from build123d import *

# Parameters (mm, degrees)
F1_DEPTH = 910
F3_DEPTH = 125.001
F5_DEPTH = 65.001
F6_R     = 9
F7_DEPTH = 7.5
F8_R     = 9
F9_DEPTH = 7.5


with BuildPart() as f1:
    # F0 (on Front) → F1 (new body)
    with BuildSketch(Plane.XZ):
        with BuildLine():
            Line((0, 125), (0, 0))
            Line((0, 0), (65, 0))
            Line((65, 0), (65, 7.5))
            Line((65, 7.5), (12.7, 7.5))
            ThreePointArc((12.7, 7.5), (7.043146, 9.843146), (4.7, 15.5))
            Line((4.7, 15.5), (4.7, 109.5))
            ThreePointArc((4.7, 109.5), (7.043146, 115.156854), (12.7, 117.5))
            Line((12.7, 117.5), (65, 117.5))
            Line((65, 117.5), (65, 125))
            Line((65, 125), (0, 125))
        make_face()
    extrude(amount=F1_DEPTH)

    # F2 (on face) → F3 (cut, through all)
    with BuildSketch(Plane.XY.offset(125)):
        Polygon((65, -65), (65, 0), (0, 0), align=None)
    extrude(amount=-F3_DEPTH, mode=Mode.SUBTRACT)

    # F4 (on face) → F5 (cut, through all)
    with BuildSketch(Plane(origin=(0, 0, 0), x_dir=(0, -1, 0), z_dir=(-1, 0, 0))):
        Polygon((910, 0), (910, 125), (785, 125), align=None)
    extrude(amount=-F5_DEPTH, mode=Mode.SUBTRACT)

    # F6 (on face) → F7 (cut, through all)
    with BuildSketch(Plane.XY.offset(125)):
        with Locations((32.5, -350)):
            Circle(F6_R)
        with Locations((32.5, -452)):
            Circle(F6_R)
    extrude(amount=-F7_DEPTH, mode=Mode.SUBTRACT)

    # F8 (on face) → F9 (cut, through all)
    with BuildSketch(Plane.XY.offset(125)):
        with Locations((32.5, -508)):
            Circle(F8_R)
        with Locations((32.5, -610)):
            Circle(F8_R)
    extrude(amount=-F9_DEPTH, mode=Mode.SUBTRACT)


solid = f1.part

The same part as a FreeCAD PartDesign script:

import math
import FreeCAD as App
import Part
import Sketcher
from FreeCAD import Vector


def add_polygon(sketch, points):
    """Adds a closed chain of lines whose ends are joined by coincident constraints."""
    first, n = sketch.GeometryCount, len(points)
    for a, b in zip(points, points[1:] + points[:1]):
        sketch.addGeometry(Part.LineSegment(App.Vector(*a, 0), App.Vector(*b, 0)), False)
    for i in range(n):
        sketch.addConstraint(Sketcher.Constraint("Coincident", first + i, 2, first + (i + 1) % n, 1))

doc = App.newDocument("Part")
body = doc.addObject("PartDesign::Body", "Body")

sketch1 = body.newObject("Sketcher::SketchObject", "Sketch")
sketch1.AttachmentSupport = (doc.getObject("XZ_Plane"), [""])
sketch1.MapMode = "FlatFace"
sketch1.addGeometry(Part.LineSegment(Vector(0, 125, 0), Vector(0, 0, 0)), False)
sketch1.addGeometry(Part.LineSegment(Vector(0, 0, 0), Vector(65, 0, 0)), False)
sketch1.addGeometry(Part.LineSegment(Vector(65, 0, 0), Vector(65, 8, 0)), False)
sketch1.addGeometry(Part.LineSegment(Vector(65, 8, 0), Vector(13, 8, 0)), False)
sketch1.addGeometry(Part.ArcOfCircle(Part.Circle(Vector(13, 16, 0), Vector(0, 0, 1), 8), math.radians(-180), math.radians(-90)), False)
sketch1.addGeometry(Part.LineSegment(Vector(5, 16, 0), Vector(5, 110, 0)), False)
sketch1.addGeometry(Part.ArcOfCircle(Part.Circle(Vector(13, 109, 0), Vector(0, 0, 1), 8), math.radians(90), math.radians(180)), False)
sketch1.addGeometry(Part.LineSegment(Vector(13, 118, 0), Vector(65, 118, 0)), False)
sketch1.addGeometry(Part.LineSegment(Vector(65, 118, 0), Vector(65, 125, 0)), False)
sketch1.addGeometry(Part.LineSegment(Vector(65, 125, 0), Vector(0, 125, 0)), False)
sketch1.addConstraint(Sketcher.Constraint("Coincident", 0, 2, 1, 1))
sketch1.addConstraint(Sketcher.Constraint("Coincident", 1, 2, 2, 1))
sketch1.addConstraint(Sketcher.Constraint("Coincident", 2, 2, 3, 1))
sketch1.addConstraint(Sketcher.Constraint("Tangent", 3, 2, 4, 2))
sketch1.addConstraint(Sketcher.Constraint("Tangent", 4, 1, 5, 1))
sketch1.addConstraint(Sketcher.Constraint("Tangent", 5, 2, 6, 2))
sketch1.addConstraint(Sketcher.Constraint("Tangent", 6, 1, 7, 1))
sketch1.addConstraint(Sketcher.Constraint("Coincident", 7, 2, 8, 1))
sketch1.addConstraint(Sketcher.Constraint("Coincident", 8, 2, 9, 1))
sketch1.addConstraint(Sketcher.Constraint("Coincident", 9, 2, 0, 1))
sketch1.addConstraint(Sketcher.Constraint("Vertical", 0))
sketch1.addConstraint(Sketcher.Constraint("Horizontal", 1))
sketch1.addConstraint(Sketcher.Constraint("Vertical", 2))
sketch1.addConstraint(Sketcher.Constraint("Horizontal", 3))
sketch1.addConstraint(Sketcher.Constraint("Vertical", 5))
sketch1.addConstraint(Sketcher.Constraint("Horizontal", 7))
sketch1.addConstraint(Sketcher.Constraint("Vertical", 8))
sketch1.addConstraint(Sketcher.Constraint("Horizontal", 9))
sketch1.addConstraint(Sketcher.Constraint("Coincident", 0, 2, -1, 1))
sketch1.addConstraint(Sketcher.Constraint("Equal", 4, 6))
sketch1.addConstraint(Sketcher.Constraint("Vertical", 2, 2, 7, 2))
sketch1.addConstraint(Sketcher.Constraint("Equal", 2, 8))
sketch1.addConstraint(Sketcher.Constraint("Radius", 4, 8.000001))
sketch1.addConstraint(Sketcher.Constraint("DistanceX", 1, 1, 1, 2, 65.0))
sketch1.addConstraint(Sketcher.Constraint("DistanceY", 0, 2, 0, 1, 125.0))
sketch1.addConstraint(Sketcher.Constraint("DistanceY", 5, 1, 5, 2, 94.0))
sketch1.addConstraint(Sketcher.Constraint("DistanceX", 3, 2, 3, 1, 52.3))
pad1 = body.newObject("PartDesign::Pad", "Pad")
pad1.Profile = sketch1
pad1.Length = 910

sketch2 = body.newObject("Sketcher::SketchObject", "Sketch001")
sketch2.AttachmentSupport = (doc.getObject("XY_Plane"), [""])
sketch2.MapMode = "FlatFace"
sketch2.AttachmentOffset = App.Placement(Vector(0, 0, 125), App.Rotation())
add_polygon(sketch2, [(65, -65), (65, 0), (0, 0)])
sketch2.addConstraint(Sketcher.Constraint("Vertical", 0))
sketch2.addConstraint(Sketcher.Constraint("Horizontal", 1))
sketch2.addConstraint(Sketcher.Constraint("Coincident", 1, 2, -1, 1))
sketch2.addConstraint(Sketcher.Constraint("Equal", 1, 0))
sketch2.addConstraint(Sketcher.Constraint("DistanceX", 1, 2, 1, 1, 65.0))
pocket1 = body.newObject("PartDesign::Pocket", "Pocket")
pocket1.Profile = sketch2
pocket1.Type = "ThroughAll"

sketch3 = body.newObject("Sketcher::SketchObject", "Sketch002")
sketch3.AttachmentSupport = (doc.getObject("YZ_Plane"), [""])
sketch3.MapMode = "FlatFace"
add_polygon(sketch3, [(-910, 0), (-910, 125), (-785, 125)])
sketch3.addConstraint(Sketcher.Constraint("Vertical", 0))
sketch3.addConstraint(Sketcher.Constraint("Horizontal", 1))
sketch3.addConstraint(Sketcher.Constraint("PointOnObject", 2, 2, -1))
sketch3.addConstraint(Sketcher.Constraint("Equal", 1, 0))
sketch3.addConstraint(Sketcher.Constraint("DistanceX", 1, 1, 1, 2, 125.0))
sketch3.addConstraint(Sketcher.Constraint("DistanceX", 0, 2, -1, 1, 910.0))
pocket2 = body.newObject("PartDesign::Pocket", "Pocket001")
pocket2.Profile = sketch3
pocket2.Type = "ThroughAll"
pocket2.Reversed = True

sketch4 = body.newObject("Sketcher::SketchObject", "Sketch003")
sketch4.AttachmentSupport = (doc.getObject("XY_Plane"), [""])
sketch4.MapMode = "FlatFace"
sketch4.AttachmentOffset = App.Placement(Vector(0, 0, 125), App.Rotation())
sketch4.addGeometry(Part.Circle(Vector(32, -350, 0), Vector(0, 0, 1), 9), False)
sketch4.addGeometry(Part.Circle(Vector(32, -452, 0), Vector(0, 0, 1), 9), False)
sketch4.addConstraint(Sketcher.Constraint("Equal", 0, 1))
sketch4.addConstraint(Sketcher.Constraint("Vertical", 0, 3, 1, 3))
sketch4.addConstraint(Sketcher.Constraint("Diameter", 0, 18.0))
sketch4.addConstraint(Sketcher.Constraint("DistanceY", 0, 3, -1, 1, 350.0))
sketch4.addConstraint(Sketcher.Constraint("DistanceY", 1, 3, -1, 1, 452.0))
sketch4.addConstraint(Sketcher.Constraint("DistanceX", -1, 1, 0, 3, 32.5))
pocket3 = body.newObject("PartDesign::Pocket", "Pocket002")
pocket3.Profile = sketch4
pocket3.Length = 7.5

sketch5 = body.newObject("Sketcher::SketchObject", "Sketch004")
sketch5.AttachmentSupport = (doc.getObject("XY_Plane"), [""])
sketch5.MapMode = "FlatFace"
sketch5.AttachmentOffset = App.Placement(Vector(0, 0, 125), App.Rotation())
sketch5.addGeometry(Part.Circle(Vector(32, -508, 0), Vector(0, 0, 1), 9), False)
sketch5.addGeometry(Part.Circle(Vector(32, -610, 0), Vector(0, 0, 1), 9), False)
sketch5.addConstraint(Sketcher.Constraint("Equal", 0, 1))
sketch5.addConstraint(Sketcher.Constraint("Vertical", 0, 3, 1, 3))
sketch5.addConstraint(Sketcher.Constraint("Diameter", 0, 18.0))
sketch5.addConstraint(Sketcher.Constraint("DistanceY", 0, 3, -1, 1, 508.0))
sketch5.addConstraint(Sketcher.Constraint("DistanceY", 1, 3, -1, 1, 610.0))
sketch5.addConstraint(Sketcher.Constraint("DistanceX", -1, 1, 0, 3, 32.5))
pocket4 = body.newObject("PartDesign::Pocket", "Pocket003")
pocket4.Profile = sketch5
pocket4.Length = 7.5

doc.recompute()
